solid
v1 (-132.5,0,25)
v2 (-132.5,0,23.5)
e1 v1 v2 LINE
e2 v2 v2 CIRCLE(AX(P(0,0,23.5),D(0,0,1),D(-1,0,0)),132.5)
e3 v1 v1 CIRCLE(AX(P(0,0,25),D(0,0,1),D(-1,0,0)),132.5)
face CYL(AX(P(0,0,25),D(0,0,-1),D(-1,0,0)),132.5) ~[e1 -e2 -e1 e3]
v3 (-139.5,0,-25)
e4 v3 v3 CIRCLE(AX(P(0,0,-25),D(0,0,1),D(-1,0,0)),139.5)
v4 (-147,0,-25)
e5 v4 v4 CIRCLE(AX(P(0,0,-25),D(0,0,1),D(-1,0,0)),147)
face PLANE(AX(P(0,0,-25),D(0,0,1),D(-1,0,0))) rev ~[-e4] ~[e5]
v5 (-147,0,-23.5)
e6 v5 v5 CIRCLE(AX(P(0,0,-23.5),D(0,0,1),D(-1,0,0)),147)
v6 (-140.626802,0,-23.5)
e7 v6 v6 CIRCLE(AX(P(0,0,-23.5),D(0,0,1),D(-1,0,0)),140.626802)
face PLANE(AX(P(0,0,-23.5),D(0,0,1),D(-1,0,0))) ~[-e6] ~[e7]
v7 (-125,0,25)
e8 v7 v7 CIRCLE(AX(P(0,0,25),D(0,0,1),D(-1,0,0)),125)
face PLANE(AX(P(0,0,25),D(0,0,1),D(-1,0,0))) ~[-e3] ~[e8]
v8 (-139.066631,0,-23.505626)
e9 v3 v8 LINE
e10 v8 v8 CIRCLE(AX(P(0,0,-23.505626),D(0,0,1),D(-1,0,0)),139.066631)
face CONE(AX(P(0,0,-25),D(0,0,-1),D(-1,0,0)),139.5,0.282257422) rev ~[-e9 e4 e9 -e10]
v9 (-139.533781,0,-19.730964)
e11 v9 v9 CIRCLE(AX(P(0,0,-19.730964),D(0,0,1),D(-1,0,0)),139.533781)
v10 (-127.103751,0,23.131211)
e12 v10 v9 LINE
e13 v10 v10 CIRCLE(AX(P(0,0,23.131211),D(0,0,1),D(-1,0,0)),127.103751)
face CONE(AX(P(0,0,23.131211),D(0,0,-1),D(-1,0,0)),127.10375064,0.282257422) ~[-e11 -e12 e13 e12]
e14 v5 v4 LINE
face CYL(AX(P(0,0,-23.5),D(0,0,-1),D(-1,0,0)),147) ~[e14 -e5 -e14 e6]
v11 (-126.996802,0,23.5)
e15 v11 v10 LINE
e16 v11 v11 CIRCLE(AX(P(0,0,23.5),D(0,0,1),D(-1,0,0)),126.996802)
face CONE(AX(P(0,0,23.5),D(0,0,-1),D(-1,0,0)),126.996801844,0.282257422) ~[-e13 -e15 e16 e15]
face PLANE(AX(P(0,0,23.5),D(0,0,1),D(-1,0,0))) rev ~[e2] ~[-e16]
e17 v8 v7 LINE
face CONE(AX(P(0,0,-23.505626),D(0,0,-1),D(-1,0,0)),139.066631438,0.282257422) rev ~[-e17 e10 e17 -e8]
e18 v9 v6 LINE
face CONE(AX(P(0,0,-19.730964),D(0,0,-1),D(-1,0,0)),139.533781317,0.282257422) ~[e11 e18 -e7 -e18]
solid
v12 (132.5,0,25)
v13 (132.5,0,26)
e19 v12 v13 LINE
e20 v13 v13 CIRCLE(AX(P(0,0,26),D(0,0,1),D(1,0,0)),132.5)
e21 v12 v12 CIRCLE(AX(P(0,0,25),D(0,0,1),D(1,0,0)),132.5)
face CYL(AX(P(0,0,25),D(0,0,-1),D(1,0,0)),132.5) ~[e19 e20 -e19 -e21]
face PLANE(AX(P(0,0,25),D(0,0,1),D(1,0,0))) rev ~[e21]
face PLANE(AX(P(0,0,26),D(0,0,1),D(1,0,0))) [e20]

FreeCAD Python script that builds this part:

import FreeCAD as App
import Part
import Sketcher
Q = App.Units.Quantity


def add_polygon(sketch, points):
    """Adds a closed chain of lines whose ends are joined by coincident constraints."""
    first, n = sketch.GeometryCount, len(points)
    for a, b in zip(points, points[1:] + points[:1]):
        sketch.addGeometry(Part.LineSegment(App.Vector(*a, 0), App.Vector(*b, 0)), False)
    for i in range(n):
        sketch.addConstraint(Sketcher.Constraint("Coincident", first + i, 2, first + (i + 1) % n, 1))

doc = App.newDocument("Part")
body = doc.addObject("PartDesign::Body", "Body")

sketch1 = doc.addObject("Sketcher::SketchObject", "Sketch")
body.addObject(sketch1)
sketch1.AttachmentSupport = (doc.XZ_Plane, [""])
sketch1.MapMode = "FlatFace"
add_polygon(sketch1, [(-147, -23.5), (-147, -25), (-139.5, -25), (-139.07, -23.51), (-125, 25), (-132.5, 25), (-132.5, 23.5), (-127, 23.5), (-127.1, 23.13), (-139.53, -19.73), (-140.63, -23.5)])
sketch1.addConstraint([
    Sketcher.Constraint("Vertical", 0),
    Sketcher.Constraint("Horizontal", 1),
    Sketcher.Constraint("Horizontal", 4),
    Sketcher.Constraint("Vertical", 5),
    Sketcher.Constraint("Horizontal", 6),
    Sketcher.Constraint("Horizontal", 10),
    Sketcher.Constraint("Parallel", 2, 3),
    Sketcher.Constraint("Parallel", 3, 7),
    Sketcher.Constraint("Parallel", 7, 8),
    Sketcher.Constraint("Parallel", 8, 9),
    Sketcher.Constraint("Equal", 1, 4),
    Sketcher.Constraint("Equal", 0, 5),
    Sketcher.Constraint("DistanceX", 1, 1, 1, 2, Q("7.5 mm")),
    Sketcher.Constraint("DistanceY", 0, 2, 0, 1, Q("1.5 mm")),
    Sketcher.Constraint("DistanceX", 0, 2, -1, 1, Q("147 mm")),
    Sketcher.Constraint("DistanceY", 0, 2, -1, 1, Q("25 mm")),
    Sketcher.Constraint("DistanceX", 3, 2, -1, 1, Q("125 mm")),
    Sketcher.Constraint("DistanceY", -1, 1, 3, 2, Q("25 mm")),
    Sketcher.Constraint("DistanceX", 6, 1, 6, 2, Q("5.503198 mm")),
    Sketcher.Constraint("Distance", 8, Q("44.628149 mm")),
    Sketcher.Constraint("DistanceX", 2, 2, -1, 1, Q("139.066631 mm")),
    Sketcher.Constraint("DistanceX", 7, 2, -1, 1, Q("127.103751 mm")),
])
revolution = doc.addObject("PartDesign::Revolution", "Revolution")
body.addObject(revolution)
revolution.Profile = sketch1
revolution.ReferenceAxis = (sketch1, ["V_Axis"])
revolution.Angle = 360
body2 = doc.addObject("PartDesign::Body", "Body001")

sketch2 = doc.addObject("Sketcher::SketchObject", "Sketch001")
body2.addObject(sketch2)
sketch2.AttachmentSupport = (doc.getObject("XY_Plane001"), [""])
sketch2.MapMode = "FlatFace"
sketch2.AttachmentOffset = App.Placement(App.Vector(0, 0, 25), App.Rotation())
sketch2.addGeometry(Part.Circle(App.Vector(0, 0, 0), App.Vector(0, 0, 1), 132), False)
sketch2.addConstraint([
    Sketcher.Constraint("Coincident", 0, 3, -1, 1),
    Sketcher.Constraint("Diameter", 0, Q("265 mm")),
])
pad1 = doc.addObject("PartDesign::Pad", "Pad")
body2.addObject(pad1)
pad1.Profile = sketch2
pad1.Length = 1

doc.recompute()
